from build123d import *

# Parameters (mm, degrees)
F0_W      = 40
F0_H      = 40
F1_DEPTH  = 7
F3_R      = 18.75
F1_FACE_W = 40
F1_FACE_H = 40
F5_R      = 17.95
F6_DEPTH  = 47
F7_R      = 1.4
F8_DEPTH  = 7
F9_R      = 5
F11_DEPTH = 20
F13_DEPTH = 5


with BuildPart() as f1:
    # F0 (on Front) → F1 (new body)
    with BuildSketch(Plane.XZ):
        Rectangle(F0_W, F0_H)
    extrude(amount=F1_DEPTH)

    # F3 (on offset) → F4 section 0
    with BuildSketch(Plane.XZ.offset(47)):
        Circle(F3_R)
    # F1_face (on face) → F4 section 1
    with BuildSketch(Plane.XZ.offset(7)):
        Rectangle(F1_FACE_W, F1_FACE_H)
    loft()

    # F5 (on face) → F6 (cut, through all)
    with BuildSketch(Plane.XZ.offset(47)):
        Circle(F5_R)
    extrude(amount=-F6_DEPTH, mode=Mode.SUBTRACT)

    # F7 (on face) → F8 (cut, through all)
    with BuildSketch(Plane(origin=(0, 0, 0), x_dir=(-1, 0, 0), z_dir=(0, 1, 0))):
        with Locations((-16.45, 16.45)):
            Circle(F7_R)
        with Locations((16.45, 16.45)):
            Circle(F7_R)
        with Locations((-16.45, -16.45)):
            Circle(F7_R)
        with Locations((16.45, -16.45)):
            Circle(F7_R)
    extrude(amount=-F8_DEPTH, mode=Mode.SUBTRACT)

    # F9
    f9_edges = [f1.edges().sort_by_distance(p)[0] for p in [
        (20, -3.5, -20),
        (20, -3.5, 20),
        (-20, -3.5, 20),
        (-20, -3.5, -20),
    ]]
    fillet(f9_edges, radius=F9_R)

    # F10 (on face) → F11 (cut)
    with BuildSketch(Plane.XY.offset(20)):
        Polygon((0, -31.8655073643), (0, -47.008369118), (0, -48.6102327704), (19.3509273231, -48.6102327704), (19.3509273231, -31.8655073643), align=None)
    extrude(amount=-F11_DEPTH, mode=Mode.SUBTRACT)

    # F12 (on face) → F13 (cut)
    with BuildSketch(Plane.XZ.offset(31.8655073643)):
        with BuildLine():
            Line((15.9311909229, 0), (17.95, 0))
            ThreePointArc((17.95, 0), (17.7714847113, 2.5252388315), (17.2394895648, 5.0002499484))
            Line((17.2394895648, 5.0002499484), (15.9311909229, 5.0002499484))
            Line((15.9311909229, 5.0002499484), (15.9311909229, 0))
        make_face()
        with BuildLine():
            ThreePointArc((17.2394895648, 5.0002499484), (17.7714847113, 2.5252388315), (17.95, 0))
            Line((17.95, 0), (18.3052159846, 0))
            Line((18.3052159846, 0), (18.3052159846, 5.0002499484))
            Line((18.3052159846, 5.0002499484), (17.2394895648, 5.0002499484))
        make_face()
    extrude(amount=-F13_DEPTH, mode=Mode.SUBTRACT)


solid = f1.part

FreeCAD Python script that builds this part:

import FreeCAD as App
import Part
import Sketcher
from FreeCAD import Vector


def edges_at(feature, points):
    """Names of the edges that pass closest to the given points."""
    edges = feature.Shape.Edges
    near = lambda p: min(range(len(edges)), key=lambda i: edges[i].distToShape(Part.Vertex(*p))[0])
    return sorted({f"Edge{near(p) + 1}" for p in points})


def add_polygon(sketch, points):
    """Adds a closed chain of lines whose ends are joined by coincident constraints."""
    first, n = sketch.GeometryCount, len(points)
    for a, b in zip(points, points[1:] + points[:1]):
        sketch.addGeometry(Part.LineSegment(App.Vector(*a, 0), App.Vector(*b, 0)), False)
    for i in range(n):
        sketch.addConstraint(Sketcher.Constraint("Coincident", first + i, 2, first + (i + 1) % n, 1))

doc = App.newDocument("Part")
body = doc.addObject("PartDesign::Body", "Body")

# Sketch on XZ plane
sketch1 = body.newObject("Sketcher::SketchObject", "Sketch")
sketch1.AttachmentSupport = (doc.getObject("XZ_Plane"), [""])
sketch1.MapMode = "FlatFace"
add_polygon(sketch1, [(-20, 20), (-20, -20), (20, -20), (20, 20)])  # lines 0-3
sketch1.addConstraint(Sketcher.Constraint("Vertical", 0))
sketch1.addConstraint(Sketcher.Constraint("Horizontal", 1))
sketch1.addConstraint(Sketcher.Constraint("Vertical", 2))
sketch1.addConstraint(Sketcher.Constraint("Horizontal", 3))
sketch1.addConstraint(Sketcher.Constraint("Symmetric", 0, 2, 2, 2, -1, 1))
sketch1.addConstraint(Sketcher.Constraint("Equal", 3, 0))
sketch1.addConstraint(Sketcher.Constraint("DistanceX", 1, 1, 1, 2, 40.0))
pad1 = body.newObject("PartDesign::Pad", "Pad")
pad1.Profile = sketch1
pad1.Length = 7

# Sketch on XZ plane
sketch2 = body.newObject("Sketcher::SketchObject", "Sketch001")
sketch2.AttachmentSupport = (doc.getObject("XZ_Plane"), [""])
sketch2.MapMode = "FlatFace"
sketch2.AttachmentOffset = App.Placement(Vector(0, 0, 47), App.Rotation())
sketch2.addGeometry(Part.Circle(Vector(0, 0, 0), Vector(0, 0, 1), 19), False)
sketch2.addConstraint(Sketcher.Constraint("Coincident", 0, 3, -1, 1))
sketch2.addConstraint(Sketcher.Constraint("Diameter", 0, 37.5))

# Sketch on XZ plane
sketch3 = body.newObject("Sketcher::SketchObject", "Sketch002")
sketch3.AttachmentSupport = (doc.getObject("XZ_Plane"), [""])
sketch3.MapMode = "FlatFace"
sketch3.AttachmentOffset = App.Placement(Vector(0, 0, 7), App.Rotation())
add_polygon(sketch3, [(-20, 20), (-20, -20), (20, -20), (20, 20)])  # lines 0-3
sketch3.addConstraint(Sketcher.Constraint("Vertical", 0))
sketch3.addConstraint(Sketcher.Constraint("Horizontal", 1))
sketch3.addConstraint(Sketcher.Constraint("Vertical", 2))
sketch3.addConstraint(Sketcher.Constraint("Horizontal", 3))
sketch3.addConstraint(Sketcher.Constraint("Symmetric", 0, 2, 2, 2, -1, 1))
sketch3.addConstraint(Sketcher.Constraint("Equal", 3, 0))
sketch3.addConstraint(Sketcher.Constraint("DistanceX", 1, 1, 1, 2, 40.0))

additiveloft = body.newObject("PartDesign::AdditiveLoft", "AdditiveLoft")
additiveloft.Profile = sketch2
additiveloft.Sections = [sketch3]

# Sketch on XZ plane
sketch4 = body.newObject("Sketcher::SketchObject", "Sketch003")
sketch4.AttachmentSupport = (doc.getObject("XZ_Plane"), [""])
sketch4.MapMode = "FlatFace"
sketch4.AttachmentOffset = App.Placement(Vector(0, 0, 47), App.Rotation())
sketch4.addGeometry(Part.Circle(Vector(0, 0, 0), Vector(0, 0, 1), 18), False)
sketch4.addConstraint(Sketcher.Constraint("Coincident", 0, 3, -1, 1))
sketch4.addConstraint(Sketcher.Constraint("Diameter", 0, 35.9))
pocket1 = body.newObject("PartDesign::Pocket", "Pocket")
pocket1.Profile = sketch4
pocket1.Type = "ThroughAll"

# Sketch on XZ plane
sketch5 = body.newObject("Sketcher::SketchObject", "Sketch004")
sketch5.AttachmentSupport = (doc.getObject("XZ_Plane"), [""])
sketch5.MapMode = "FlatFace"
sketch5.addGeometry(Part.Circle(Vector(16.4, 16.4, 0), Vector(0, 0, 1), 1.4), False)
sketch5.addGeometry(Part.Circle(Vector(-16.4, 16.4, 0), Vector(0, 0, 1), 1.4), False)
sketch5.addGeometry(Part.Circle(Vector(16.4, -16.4, 0), Vector(0, 0, 1), 1.4), False)
sketch5.addGeometry(Part.Circle(Vector(-16.4, -16.4, 0), Vector(0, 0, 1), 1.4), False)
sketch5.addConstraint(Sketcher.Constraint("Equal", 0, 1))
sketch5.addConstraint(Sketcher.Constraint("Equal", 1, 2))
sketch5.addConstraint(Sketcher.Constraint("Equal", 2, 3))
sketch5.addConstraint(Sketcher.Constraint("Symmetric", 1, 3, 2, 3, -1, 1))
sketch5.addConstraint(Sketcher.Constraint("Symmetric", 0, 3, 3, 3, -1, 1))
sketch5.addConstraint(Sketcher.Constraint("Symmetric", 0, 3, 1, 3, -2))
sketch5.addConstraint(Sketcher.Constraint("Diameter", 0, 2.8))
sketch5.addConstraint(Sketcher.Constraint("DistanceX", 1, 3, 0, 3, 32.9))
sketch5.addConstraint(Sketcher.Constraint("DistanceY", 2, 3, 0, 3, 32.9))
pocket2 = body.newObject("PartDesign::Pocket", "Pocket001")
pocket2.Profile = sketch5
pocket2.Length = 7
pocket2.Reversed = True
doc.recompute()

fillet = body.newObject("PartDesign::Fillet", "Fillet")
fillet.Base = (pocket2, edges_at(pocket2, [
    (20, -3.5, -20),
    (20, -3.5, 20),
    (-20, -3.5, 20),
    (-20, -3.5, -20),
]))
fillet.Radius = 5

# Sketch on XY plane
sketch6 = body.newObject("Sketcher::SketchObject", "Sketch005")
sketch6.AttachmentSupport = (doc.getObject("XY_Plane"), [""])
sketch6.MapMode = "FlatFace"
sketch6.AttachmentOffset = App.Placement(Vector(0, 0, 20), App.Rotation())
add_polygon(sketch6, [(0, -32), (0, -49), (19, -49), (19, -32)])  # lines 0-3
sketch6.addConstraint(Sketcher.Constraint("Vertical", 0))
sketch6.addConstraint(Sketcher.Constraint("Horizontal", 1))
sketch6.addConstraint(Sketcher.Constraint("Vertical", 2))
sketch6.addConstraint(Sketcher.Constraint("Horizontal", 3))
sketch6.addConstraint(Sketcher.Constraint("PointOnObject", 0, 2, -2))
sketch6.addConstraint(Sketcher.Constraint("DistanceX", 1, 1, 1, 2, 19.350927))
sketch6.addConstraint(Sketcher.Constraint("DistanceY", 0, 2, 0, 1, 16.744725))
sketch6.addConstraint(Sketcher.Constraint("DistanceY", 0, 2, -1, 1, 48.610233))
pocket3 = body.newObject("PartDesign::Pocket", "Pocket002")
pocket3.Profile = sketch6
pocket3.Length = 20

# Sketch on XZ plane
sketch7 = body.newObject("Sketcher::SketchObject", "Sketch006")
sketch7.AttachmentSupport = (doc.getObject("XZ_Plane"), [""])
sketch7.MapMode = "FlatFace"
sketch7.AttachmentOffset = App.Placement(Vector(0, 0, 31.865507), App.Rotation())
add_polygon(sketch7, [(15.9, 0), (18.3, 0), (18.3, 5), (15.9, 5)])  # lines 0-3
sketch7.addConstraint(Sketcher.Constraint("Horizontal", 0))
sketch7.addConstraint(Sketcher.Constraint("Vertical", 1))
sketch7.addConstraint(Sketcher.Constraint("Horizontal", 2))
sketch7.addConstraint(Sketcher.Constraint("Vertical", 3))
sketch7.addConstraint(Sketcher.Constraint("PointOnObject", 0, 2, -1))
sketch7.addConstraint(Sketcher.Constraint("DistanceY", 1, 1, 1, 2, 5.00025))
sketch7.addConstraint(Sketcher.Constraint("DistanceX", 0, 1, 0, 2, 2.374025))
sketch7.addConstraint(Sketcher.Constraint("DistanceX", -1, 1, 2, 2, 15.931191))
pocket4 = body.newObject("PartDesign::Pocket", "Pocket003")
pocket4.Profile = sketch7
pocket4.Length = 5

doc.recompute()
